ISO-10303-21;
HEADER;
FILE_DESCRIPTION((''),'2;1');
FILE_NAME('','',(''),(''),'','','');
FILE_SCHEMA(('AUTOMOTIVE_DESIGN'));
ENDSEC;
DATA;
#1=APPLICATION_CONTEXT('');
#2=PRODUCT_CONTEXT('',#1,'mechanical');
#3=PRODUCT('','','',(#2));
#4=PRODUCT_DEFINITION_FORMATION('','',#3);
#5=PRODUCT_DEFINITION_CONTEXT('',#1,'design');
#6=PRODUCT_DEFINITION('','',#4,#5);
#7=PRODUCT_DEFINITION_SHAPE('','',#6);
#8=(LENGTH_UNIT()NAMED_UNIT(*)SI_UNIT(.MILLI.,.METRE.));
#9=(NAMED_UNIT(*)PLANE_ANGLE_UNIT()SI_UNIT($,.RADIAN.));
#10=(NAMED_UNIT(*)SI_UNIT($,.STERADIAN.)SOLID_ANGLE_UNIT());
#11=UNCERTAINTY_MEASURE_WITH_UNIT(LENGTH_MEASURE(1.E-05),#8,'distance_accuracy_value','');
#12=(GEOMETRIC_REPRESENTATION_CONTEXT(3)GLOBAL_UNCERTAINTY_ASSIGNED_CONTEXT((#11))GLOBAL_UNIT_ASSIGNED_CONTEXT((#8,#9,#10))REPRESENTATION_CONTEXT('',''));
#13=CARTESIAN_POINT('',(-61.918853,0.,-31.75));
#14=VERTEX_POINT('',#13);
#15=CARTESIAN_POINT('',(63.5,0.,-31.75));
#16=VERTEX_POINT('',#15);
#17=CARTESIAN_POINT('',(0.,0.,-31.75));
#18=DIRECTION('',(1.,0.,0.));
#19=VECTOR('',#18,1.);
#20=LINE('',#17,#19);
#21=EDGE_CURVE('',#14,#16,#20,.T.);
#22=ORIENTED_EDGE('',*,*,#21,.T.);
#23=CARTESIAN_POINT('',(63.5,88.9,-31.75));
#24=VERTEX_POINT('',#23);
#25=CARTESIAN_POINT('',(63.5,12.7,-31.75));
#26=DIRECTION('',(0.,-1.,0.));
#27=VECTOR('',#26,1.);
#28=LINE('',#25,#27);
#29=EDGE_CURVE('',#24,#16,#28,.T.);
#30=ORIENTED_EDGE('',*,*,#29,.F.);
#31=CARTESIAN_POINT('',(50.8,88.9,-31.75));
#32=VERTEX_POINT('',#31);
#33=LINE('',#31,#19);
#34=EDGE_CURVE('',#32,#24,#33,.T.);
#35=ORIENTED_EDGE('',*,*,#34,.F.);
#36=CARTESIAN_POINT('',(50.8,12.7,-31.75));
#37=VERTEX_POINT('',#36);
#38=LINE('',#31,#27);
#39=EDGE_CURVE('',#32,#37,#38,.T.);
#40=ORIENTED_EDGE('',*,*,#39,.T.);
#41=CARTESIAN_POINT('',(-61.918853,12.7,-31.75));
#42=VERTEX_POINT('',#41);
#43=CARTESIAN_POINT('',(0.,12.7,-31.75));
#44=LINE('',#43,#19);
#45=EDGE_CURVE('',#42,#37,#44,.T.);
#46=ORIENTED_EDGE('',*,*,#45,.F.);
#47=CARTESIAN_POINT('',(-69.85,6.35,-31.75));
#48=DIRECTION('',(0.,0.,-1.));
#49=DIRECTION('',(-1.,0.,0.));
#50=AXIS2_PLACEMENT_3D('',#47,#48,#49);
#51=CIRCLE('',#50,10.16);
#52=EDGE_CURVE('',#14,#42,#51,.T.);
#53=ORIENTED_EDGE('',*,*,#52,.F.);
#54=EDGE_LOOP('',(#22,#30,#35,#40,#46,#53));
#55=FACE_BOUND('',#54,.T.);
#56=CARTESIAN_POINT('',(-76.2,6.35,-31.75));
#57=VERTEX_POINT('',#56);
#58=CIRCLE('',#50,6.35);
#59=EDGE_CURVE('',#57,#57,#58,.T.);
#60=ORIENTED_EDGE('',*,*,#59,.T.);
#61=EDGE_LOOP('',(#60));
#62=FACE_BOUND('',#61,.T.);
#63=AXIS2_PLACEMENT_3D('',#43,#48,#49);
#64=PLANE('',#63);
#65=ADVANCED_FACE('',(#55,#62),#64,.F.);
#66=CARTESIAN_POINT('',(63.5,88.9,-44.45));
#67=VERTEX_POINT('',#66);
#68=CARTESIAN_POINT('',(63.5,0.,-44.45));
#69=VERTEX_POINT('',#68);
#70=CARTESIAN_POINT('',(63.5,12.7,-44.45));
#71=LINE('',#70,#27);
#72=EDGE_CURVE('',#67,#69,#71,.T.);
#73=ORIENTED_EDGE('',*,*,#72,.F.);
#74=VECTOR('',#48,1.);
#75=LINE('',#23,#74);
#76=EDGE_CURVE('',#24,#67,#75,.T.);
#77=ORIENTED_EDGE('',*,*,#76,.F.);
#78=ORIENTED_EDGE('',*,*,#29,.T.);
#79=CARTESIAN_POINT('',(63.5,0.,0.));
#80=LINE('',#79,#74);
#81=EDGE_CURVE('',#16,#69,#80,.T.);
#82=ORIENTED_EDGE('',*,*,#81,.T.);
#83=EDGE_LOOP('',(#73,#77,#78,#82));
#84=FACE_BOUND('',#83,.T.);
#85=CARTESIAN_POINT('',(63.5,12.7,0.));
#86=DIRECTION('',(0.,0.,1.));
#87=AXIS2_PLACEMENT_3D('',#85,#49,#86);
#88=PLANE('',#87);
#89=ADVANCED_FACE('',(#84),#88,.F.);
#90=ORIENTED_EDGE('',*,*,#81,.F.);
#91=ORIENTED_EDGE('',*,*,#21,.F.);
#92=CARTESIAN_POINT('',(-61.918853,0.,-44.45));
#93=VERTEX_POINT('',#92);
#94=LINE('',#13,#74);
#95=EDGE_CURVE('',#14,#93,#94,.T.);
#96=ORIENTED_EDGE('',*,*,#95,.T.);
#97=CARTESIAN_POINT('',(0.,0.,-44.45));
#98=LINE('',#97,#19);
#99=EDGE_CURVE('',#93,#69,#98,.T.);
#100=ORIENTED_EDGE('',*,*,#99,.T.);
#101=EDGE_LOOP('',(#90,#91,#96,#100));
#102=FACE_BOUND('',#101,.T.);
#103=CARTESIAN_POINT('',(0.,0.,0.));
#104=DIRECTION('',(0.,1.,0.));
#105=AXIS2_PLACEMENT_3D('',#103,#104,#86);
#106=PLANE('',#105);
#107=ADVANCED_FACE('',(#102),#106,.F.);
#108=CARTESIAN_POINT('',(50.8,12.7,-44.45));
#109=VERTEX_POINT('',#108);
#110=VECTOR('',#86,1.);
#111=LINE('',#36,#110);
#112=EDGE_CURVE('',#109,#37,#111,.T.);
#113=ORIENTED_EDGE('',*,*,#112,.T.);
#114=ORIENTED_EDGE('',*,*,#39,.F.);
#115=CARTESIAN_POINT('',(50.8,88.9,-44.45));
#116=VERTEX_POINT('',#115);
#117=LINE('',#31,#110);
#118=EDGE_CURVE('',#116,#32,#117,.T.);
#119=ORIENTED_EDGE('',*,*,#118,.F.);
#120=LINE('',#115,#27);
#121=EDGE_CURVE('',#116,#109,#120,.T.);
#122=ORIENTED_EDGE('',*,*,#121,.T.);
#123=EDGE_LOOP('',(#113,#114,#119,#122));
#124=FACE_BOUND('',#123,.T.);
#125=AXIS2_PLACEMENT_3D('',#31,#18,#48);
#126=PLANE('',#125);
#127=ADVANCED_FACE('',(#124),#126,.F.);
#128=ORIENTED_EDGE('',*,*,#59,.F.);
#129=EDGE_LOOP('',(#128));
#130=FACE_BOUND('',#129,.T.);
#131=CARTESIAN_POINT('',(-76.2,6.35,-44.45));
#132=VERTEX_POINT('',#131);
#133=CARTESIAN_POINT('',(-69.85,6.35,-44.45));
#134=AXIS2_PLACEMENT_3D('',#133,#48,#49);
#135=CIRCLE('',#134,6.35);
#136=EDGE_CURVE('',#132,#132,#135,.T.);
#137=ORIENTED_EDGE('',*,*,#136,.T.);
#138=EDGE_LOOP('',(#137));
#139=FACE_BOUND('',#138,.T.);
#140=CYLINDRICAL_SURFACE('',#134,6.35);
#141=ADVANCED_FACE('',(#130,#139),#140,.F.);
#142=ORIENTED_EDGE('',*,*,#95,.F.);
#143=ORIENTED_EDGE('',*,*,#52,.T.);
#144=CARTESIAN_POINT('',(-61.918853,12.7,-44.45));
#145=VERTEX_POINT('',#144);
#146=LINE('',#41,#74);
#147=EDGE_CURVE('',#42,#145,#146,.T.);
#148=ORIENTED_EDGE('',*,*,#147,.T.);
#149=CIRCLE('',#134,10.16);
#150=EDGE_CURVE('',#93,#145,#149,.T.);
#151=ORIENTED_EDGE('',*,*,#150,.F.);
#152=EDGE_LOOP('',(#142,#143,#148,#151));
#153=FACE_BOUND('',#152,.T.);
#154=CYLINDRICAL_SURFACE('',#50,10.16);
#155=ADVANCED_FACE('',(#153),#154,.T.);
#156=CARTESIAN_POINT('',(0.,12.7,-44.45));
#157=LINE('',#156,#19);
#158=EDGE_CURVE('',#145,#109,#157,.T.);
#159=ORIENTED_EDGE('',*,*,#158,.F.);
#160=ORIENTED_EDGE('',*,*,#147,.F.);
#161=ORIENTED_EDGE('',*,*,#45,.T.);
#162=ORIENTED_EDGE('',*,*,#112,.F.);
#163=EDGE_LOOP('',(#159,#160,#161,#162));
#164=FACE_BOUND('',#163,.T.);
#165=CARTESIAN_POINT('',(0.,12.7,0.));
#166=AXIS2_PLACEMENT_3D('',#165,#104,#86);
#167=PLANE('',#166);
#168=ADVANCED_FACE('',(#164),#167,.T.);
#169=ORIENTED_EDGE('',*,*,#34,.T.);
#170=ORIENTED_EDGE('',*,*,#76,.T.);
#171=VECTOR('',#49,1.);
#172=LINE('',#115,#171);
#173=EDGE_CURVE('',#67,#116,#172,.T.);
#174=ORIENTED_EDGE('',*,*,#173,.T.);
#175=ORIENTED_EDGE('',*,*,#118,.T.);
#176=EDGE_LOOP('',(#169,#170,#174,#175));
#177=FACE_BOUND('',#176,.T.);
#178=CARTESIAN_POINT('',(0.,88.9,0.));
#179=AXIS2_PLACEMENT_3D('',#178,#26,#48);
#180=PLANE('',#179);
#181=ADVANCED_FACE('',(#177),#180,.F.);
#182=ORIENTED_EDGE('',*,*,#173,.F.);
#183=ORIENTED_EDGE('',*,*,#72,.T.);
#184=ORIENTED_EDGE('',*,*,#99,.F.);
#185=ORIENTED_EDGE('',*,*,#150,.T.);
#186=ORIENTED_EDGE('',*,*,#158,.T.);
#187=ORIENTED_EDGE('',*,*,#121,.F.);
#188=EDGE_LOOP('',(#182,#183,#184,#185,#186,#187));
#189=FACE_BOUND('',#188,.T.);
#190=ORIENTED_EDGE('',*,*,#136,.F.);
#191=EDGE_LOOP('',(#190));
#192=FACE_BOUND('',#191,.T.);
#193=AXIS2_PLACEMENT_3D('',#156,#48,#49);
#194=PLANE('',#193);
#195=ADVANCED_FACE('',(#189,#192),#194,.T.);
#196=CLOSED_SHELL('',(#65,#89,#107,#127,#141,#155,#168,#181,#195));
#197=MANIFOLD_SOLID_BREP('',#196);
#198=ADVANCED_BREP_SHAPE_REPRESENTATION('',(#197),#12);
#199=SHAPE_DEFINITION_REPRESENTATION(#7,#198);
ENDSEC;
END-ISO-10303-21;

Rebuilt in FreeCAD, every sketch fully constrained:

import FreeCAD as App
import Part
import Sketcher
from FreeCAD import Vector
Q = App.Units.Quantity


def add_polygon(sketch, points):
    """Adds a closed chain of lines whose ends are joined by coincident constraints."""
    first, n = sketch.GeometryCount, len(points)
    for a, b in zip(points, points[1:] + points[:1]):
        sketch.addGeometry(Part.LineSegment(App.Vector(*a, 0), App.Vector(*b, 0)), False)
    for i in range(n):
        sketch.addConstraint(Sketcher.Constraint("Coincident", first + i, 2, first + (i + 1) % n, 1))

doc = App.newDocument("Part")
body = doc.addObject("PartDesign::Body", "Body")

# Sketch on XZ plane
sketch1 = body.newObject("Sketcher::SketchObject", "Sketch")
sketch1.AttachmentSupport = (doc.getObject("XZ_Plane"), [""])
sketch1.MapMode = "FlatFace"
add_polygon(sketch1, [(-63.5, -44.45), (-63.5, -31.75), (63.5, -31.75), (63.5, -44.45)])  # lines 0-3
sketch1.addConstraint(Sketcher.Constraint("Vertical", 0))
sketch1.addConstraint(Sketcher.Constraint("Horizontal", 1))
sketch1.addConstraint(Sketcher.Constraint("Vertical", 2))
sketch1.addConstraint(Sketcher.Constraint("Horizontal", 3))
sketch1.addConstraint(Sketcher.Constraint("DistanceX", 1, 1, 1, 2, Q("5 in")))
sketch1.addConstraint(Sketcher.Constraint("DistanceY", 0, 1, 0, 2, Q("0.5 in")))
sketch1.addConstraint(Sketcher.Constraint("DistanceX", 0, 2, -1, 1, Q("2.5 in")))
sketch1.addConstraint(Sketcher.Constraint("DistanceY", 0, 2, -1, 1, Q("1.25 in")))
pad1 = body.newObject("PartDesign::Pad", "Pad")
pad1.Profile = sketch1
pad1.Length = Q("0.5 in")
pad1.Reversed = True

# Sketch on XZ plane
sketch2 = body.newObject("Sketcher::SketchObject", "Sketch001")
sketch2.AttachmentSupport = (doc.getObject("XZ_Plane"), [""])
sketch2.MapMode = "FlatFace"
sketch2.AttachmentOffset = App.Placement(Vector(0, 0, -0.5 * 25.4), App.Rotation())
add_polygon(sketch2, [(50.8, -44.45), (50.8, -31.75), (63.5, -31.75), (63.5, -44.45)])  # lines 0-3
sketch2.addConstraint(Sketcher.Constraint("Vertical", 0))
sketch2.addConstraint(Sketcher.Constraint("Horizontal", 1))
sketch2.addConstraint(Sketcher.Constraint("Vertical", 2))
sketch2.addConstraint(Sketcher.Constraint("Horizontal", 3))
sketch2.addConstraint(Sketcher.Constraint("Equal", 3, 0))
sketch2.addConstraint(Sketcher.Constraint("DistanceX", 1, 1, 1, 2, Q("0.5 in")))
sketch2.addConstraint(Sketcher.Constraint("DistanceX", -1, 1, 0, 2, Q("2 in")))
sketch2.addConstraint(Sketcher.Constraint("DistanceY", 0, 2, -1, 1, Q("1.25 in")))
pad2 = body.newObject("PartDesign::Pad", "Pad001")
pad2.Profile = sketch2
pad2.Length = Q("3 in")
pad2.Reversed = True

# Sketch on XY plane
sketch3 = body.newObject("Sketcher::SketchObject", "Sketch002")
sketch3.AttachmentSupport = (doc.getObject("XY_Plane"), [""])
sketch3.MapMode = "FlatFace"
sketch3.AttachmentOffset = App.Placement(Vector(0, 0, -1.75 * 25.4), App.Rotation())
sketch3.addGeometry(Part.Circle(Vector(-69.85, 6.35, 0), Vector(0, 0, 1), 10.16), False)
sketch3.addConstraint(Sketcher.Constraint("Diameter", 0, Q("0.8 in")))
sketch3.addConstraint(Sketcher.Constraint("DistanceX", 0, 3, -1, 1, Q("2.75 in")))
sketch3.addConstraint(Sketcher.Constraint("DistanceY", -1, 1, 0, 3, Q("0.25 in")))
pad3 = body.newObject("PartDesign::Pad", "Pad002")
pad3.Profile = sketch3
pad3.Length = Q("0.5 in")

# Sketch on XY plane
sketch4 = body.newObject("Sketcher::SketchObject", "Sketch003")
sketch4.AttachmentSupport = (doc.getObject("XY_Plane"), [""])
sketch4.MapMode = "FlatFace"
sketch4.AttachmentOffset = App.Placement(Vector(0, 0, -1.75 * 25.4), App.Rotation())
sketch4.addGeometry(Part.Circle(Vector(-69.85, 6.35, 0), Vector(0, 0, 1), 6.35), False)
sketch4.addConstraint(Sketcher.Constraint("Diameter", 0, Q("0.5 in")))
sketch4.addConstraint(Sketcher.Constraint("DistanceX", 0, 3, -1, 1, Q("2.75 in")))
sketch4.addConstraint(Sketcher.Constraint("DistanceY", -1, 1, 0, 3, Q("0.25 in")))
doc.recompute()
hole = body.newObject("PartDesign::Hole", "Hole")
hole.Profile = sketch4
hole.ThreadType = "None"
hole.Diameter = Q("0.5 in")
hole.DepthType = "ThroughAll"
hole.Reversed = True

doc.recompute()
